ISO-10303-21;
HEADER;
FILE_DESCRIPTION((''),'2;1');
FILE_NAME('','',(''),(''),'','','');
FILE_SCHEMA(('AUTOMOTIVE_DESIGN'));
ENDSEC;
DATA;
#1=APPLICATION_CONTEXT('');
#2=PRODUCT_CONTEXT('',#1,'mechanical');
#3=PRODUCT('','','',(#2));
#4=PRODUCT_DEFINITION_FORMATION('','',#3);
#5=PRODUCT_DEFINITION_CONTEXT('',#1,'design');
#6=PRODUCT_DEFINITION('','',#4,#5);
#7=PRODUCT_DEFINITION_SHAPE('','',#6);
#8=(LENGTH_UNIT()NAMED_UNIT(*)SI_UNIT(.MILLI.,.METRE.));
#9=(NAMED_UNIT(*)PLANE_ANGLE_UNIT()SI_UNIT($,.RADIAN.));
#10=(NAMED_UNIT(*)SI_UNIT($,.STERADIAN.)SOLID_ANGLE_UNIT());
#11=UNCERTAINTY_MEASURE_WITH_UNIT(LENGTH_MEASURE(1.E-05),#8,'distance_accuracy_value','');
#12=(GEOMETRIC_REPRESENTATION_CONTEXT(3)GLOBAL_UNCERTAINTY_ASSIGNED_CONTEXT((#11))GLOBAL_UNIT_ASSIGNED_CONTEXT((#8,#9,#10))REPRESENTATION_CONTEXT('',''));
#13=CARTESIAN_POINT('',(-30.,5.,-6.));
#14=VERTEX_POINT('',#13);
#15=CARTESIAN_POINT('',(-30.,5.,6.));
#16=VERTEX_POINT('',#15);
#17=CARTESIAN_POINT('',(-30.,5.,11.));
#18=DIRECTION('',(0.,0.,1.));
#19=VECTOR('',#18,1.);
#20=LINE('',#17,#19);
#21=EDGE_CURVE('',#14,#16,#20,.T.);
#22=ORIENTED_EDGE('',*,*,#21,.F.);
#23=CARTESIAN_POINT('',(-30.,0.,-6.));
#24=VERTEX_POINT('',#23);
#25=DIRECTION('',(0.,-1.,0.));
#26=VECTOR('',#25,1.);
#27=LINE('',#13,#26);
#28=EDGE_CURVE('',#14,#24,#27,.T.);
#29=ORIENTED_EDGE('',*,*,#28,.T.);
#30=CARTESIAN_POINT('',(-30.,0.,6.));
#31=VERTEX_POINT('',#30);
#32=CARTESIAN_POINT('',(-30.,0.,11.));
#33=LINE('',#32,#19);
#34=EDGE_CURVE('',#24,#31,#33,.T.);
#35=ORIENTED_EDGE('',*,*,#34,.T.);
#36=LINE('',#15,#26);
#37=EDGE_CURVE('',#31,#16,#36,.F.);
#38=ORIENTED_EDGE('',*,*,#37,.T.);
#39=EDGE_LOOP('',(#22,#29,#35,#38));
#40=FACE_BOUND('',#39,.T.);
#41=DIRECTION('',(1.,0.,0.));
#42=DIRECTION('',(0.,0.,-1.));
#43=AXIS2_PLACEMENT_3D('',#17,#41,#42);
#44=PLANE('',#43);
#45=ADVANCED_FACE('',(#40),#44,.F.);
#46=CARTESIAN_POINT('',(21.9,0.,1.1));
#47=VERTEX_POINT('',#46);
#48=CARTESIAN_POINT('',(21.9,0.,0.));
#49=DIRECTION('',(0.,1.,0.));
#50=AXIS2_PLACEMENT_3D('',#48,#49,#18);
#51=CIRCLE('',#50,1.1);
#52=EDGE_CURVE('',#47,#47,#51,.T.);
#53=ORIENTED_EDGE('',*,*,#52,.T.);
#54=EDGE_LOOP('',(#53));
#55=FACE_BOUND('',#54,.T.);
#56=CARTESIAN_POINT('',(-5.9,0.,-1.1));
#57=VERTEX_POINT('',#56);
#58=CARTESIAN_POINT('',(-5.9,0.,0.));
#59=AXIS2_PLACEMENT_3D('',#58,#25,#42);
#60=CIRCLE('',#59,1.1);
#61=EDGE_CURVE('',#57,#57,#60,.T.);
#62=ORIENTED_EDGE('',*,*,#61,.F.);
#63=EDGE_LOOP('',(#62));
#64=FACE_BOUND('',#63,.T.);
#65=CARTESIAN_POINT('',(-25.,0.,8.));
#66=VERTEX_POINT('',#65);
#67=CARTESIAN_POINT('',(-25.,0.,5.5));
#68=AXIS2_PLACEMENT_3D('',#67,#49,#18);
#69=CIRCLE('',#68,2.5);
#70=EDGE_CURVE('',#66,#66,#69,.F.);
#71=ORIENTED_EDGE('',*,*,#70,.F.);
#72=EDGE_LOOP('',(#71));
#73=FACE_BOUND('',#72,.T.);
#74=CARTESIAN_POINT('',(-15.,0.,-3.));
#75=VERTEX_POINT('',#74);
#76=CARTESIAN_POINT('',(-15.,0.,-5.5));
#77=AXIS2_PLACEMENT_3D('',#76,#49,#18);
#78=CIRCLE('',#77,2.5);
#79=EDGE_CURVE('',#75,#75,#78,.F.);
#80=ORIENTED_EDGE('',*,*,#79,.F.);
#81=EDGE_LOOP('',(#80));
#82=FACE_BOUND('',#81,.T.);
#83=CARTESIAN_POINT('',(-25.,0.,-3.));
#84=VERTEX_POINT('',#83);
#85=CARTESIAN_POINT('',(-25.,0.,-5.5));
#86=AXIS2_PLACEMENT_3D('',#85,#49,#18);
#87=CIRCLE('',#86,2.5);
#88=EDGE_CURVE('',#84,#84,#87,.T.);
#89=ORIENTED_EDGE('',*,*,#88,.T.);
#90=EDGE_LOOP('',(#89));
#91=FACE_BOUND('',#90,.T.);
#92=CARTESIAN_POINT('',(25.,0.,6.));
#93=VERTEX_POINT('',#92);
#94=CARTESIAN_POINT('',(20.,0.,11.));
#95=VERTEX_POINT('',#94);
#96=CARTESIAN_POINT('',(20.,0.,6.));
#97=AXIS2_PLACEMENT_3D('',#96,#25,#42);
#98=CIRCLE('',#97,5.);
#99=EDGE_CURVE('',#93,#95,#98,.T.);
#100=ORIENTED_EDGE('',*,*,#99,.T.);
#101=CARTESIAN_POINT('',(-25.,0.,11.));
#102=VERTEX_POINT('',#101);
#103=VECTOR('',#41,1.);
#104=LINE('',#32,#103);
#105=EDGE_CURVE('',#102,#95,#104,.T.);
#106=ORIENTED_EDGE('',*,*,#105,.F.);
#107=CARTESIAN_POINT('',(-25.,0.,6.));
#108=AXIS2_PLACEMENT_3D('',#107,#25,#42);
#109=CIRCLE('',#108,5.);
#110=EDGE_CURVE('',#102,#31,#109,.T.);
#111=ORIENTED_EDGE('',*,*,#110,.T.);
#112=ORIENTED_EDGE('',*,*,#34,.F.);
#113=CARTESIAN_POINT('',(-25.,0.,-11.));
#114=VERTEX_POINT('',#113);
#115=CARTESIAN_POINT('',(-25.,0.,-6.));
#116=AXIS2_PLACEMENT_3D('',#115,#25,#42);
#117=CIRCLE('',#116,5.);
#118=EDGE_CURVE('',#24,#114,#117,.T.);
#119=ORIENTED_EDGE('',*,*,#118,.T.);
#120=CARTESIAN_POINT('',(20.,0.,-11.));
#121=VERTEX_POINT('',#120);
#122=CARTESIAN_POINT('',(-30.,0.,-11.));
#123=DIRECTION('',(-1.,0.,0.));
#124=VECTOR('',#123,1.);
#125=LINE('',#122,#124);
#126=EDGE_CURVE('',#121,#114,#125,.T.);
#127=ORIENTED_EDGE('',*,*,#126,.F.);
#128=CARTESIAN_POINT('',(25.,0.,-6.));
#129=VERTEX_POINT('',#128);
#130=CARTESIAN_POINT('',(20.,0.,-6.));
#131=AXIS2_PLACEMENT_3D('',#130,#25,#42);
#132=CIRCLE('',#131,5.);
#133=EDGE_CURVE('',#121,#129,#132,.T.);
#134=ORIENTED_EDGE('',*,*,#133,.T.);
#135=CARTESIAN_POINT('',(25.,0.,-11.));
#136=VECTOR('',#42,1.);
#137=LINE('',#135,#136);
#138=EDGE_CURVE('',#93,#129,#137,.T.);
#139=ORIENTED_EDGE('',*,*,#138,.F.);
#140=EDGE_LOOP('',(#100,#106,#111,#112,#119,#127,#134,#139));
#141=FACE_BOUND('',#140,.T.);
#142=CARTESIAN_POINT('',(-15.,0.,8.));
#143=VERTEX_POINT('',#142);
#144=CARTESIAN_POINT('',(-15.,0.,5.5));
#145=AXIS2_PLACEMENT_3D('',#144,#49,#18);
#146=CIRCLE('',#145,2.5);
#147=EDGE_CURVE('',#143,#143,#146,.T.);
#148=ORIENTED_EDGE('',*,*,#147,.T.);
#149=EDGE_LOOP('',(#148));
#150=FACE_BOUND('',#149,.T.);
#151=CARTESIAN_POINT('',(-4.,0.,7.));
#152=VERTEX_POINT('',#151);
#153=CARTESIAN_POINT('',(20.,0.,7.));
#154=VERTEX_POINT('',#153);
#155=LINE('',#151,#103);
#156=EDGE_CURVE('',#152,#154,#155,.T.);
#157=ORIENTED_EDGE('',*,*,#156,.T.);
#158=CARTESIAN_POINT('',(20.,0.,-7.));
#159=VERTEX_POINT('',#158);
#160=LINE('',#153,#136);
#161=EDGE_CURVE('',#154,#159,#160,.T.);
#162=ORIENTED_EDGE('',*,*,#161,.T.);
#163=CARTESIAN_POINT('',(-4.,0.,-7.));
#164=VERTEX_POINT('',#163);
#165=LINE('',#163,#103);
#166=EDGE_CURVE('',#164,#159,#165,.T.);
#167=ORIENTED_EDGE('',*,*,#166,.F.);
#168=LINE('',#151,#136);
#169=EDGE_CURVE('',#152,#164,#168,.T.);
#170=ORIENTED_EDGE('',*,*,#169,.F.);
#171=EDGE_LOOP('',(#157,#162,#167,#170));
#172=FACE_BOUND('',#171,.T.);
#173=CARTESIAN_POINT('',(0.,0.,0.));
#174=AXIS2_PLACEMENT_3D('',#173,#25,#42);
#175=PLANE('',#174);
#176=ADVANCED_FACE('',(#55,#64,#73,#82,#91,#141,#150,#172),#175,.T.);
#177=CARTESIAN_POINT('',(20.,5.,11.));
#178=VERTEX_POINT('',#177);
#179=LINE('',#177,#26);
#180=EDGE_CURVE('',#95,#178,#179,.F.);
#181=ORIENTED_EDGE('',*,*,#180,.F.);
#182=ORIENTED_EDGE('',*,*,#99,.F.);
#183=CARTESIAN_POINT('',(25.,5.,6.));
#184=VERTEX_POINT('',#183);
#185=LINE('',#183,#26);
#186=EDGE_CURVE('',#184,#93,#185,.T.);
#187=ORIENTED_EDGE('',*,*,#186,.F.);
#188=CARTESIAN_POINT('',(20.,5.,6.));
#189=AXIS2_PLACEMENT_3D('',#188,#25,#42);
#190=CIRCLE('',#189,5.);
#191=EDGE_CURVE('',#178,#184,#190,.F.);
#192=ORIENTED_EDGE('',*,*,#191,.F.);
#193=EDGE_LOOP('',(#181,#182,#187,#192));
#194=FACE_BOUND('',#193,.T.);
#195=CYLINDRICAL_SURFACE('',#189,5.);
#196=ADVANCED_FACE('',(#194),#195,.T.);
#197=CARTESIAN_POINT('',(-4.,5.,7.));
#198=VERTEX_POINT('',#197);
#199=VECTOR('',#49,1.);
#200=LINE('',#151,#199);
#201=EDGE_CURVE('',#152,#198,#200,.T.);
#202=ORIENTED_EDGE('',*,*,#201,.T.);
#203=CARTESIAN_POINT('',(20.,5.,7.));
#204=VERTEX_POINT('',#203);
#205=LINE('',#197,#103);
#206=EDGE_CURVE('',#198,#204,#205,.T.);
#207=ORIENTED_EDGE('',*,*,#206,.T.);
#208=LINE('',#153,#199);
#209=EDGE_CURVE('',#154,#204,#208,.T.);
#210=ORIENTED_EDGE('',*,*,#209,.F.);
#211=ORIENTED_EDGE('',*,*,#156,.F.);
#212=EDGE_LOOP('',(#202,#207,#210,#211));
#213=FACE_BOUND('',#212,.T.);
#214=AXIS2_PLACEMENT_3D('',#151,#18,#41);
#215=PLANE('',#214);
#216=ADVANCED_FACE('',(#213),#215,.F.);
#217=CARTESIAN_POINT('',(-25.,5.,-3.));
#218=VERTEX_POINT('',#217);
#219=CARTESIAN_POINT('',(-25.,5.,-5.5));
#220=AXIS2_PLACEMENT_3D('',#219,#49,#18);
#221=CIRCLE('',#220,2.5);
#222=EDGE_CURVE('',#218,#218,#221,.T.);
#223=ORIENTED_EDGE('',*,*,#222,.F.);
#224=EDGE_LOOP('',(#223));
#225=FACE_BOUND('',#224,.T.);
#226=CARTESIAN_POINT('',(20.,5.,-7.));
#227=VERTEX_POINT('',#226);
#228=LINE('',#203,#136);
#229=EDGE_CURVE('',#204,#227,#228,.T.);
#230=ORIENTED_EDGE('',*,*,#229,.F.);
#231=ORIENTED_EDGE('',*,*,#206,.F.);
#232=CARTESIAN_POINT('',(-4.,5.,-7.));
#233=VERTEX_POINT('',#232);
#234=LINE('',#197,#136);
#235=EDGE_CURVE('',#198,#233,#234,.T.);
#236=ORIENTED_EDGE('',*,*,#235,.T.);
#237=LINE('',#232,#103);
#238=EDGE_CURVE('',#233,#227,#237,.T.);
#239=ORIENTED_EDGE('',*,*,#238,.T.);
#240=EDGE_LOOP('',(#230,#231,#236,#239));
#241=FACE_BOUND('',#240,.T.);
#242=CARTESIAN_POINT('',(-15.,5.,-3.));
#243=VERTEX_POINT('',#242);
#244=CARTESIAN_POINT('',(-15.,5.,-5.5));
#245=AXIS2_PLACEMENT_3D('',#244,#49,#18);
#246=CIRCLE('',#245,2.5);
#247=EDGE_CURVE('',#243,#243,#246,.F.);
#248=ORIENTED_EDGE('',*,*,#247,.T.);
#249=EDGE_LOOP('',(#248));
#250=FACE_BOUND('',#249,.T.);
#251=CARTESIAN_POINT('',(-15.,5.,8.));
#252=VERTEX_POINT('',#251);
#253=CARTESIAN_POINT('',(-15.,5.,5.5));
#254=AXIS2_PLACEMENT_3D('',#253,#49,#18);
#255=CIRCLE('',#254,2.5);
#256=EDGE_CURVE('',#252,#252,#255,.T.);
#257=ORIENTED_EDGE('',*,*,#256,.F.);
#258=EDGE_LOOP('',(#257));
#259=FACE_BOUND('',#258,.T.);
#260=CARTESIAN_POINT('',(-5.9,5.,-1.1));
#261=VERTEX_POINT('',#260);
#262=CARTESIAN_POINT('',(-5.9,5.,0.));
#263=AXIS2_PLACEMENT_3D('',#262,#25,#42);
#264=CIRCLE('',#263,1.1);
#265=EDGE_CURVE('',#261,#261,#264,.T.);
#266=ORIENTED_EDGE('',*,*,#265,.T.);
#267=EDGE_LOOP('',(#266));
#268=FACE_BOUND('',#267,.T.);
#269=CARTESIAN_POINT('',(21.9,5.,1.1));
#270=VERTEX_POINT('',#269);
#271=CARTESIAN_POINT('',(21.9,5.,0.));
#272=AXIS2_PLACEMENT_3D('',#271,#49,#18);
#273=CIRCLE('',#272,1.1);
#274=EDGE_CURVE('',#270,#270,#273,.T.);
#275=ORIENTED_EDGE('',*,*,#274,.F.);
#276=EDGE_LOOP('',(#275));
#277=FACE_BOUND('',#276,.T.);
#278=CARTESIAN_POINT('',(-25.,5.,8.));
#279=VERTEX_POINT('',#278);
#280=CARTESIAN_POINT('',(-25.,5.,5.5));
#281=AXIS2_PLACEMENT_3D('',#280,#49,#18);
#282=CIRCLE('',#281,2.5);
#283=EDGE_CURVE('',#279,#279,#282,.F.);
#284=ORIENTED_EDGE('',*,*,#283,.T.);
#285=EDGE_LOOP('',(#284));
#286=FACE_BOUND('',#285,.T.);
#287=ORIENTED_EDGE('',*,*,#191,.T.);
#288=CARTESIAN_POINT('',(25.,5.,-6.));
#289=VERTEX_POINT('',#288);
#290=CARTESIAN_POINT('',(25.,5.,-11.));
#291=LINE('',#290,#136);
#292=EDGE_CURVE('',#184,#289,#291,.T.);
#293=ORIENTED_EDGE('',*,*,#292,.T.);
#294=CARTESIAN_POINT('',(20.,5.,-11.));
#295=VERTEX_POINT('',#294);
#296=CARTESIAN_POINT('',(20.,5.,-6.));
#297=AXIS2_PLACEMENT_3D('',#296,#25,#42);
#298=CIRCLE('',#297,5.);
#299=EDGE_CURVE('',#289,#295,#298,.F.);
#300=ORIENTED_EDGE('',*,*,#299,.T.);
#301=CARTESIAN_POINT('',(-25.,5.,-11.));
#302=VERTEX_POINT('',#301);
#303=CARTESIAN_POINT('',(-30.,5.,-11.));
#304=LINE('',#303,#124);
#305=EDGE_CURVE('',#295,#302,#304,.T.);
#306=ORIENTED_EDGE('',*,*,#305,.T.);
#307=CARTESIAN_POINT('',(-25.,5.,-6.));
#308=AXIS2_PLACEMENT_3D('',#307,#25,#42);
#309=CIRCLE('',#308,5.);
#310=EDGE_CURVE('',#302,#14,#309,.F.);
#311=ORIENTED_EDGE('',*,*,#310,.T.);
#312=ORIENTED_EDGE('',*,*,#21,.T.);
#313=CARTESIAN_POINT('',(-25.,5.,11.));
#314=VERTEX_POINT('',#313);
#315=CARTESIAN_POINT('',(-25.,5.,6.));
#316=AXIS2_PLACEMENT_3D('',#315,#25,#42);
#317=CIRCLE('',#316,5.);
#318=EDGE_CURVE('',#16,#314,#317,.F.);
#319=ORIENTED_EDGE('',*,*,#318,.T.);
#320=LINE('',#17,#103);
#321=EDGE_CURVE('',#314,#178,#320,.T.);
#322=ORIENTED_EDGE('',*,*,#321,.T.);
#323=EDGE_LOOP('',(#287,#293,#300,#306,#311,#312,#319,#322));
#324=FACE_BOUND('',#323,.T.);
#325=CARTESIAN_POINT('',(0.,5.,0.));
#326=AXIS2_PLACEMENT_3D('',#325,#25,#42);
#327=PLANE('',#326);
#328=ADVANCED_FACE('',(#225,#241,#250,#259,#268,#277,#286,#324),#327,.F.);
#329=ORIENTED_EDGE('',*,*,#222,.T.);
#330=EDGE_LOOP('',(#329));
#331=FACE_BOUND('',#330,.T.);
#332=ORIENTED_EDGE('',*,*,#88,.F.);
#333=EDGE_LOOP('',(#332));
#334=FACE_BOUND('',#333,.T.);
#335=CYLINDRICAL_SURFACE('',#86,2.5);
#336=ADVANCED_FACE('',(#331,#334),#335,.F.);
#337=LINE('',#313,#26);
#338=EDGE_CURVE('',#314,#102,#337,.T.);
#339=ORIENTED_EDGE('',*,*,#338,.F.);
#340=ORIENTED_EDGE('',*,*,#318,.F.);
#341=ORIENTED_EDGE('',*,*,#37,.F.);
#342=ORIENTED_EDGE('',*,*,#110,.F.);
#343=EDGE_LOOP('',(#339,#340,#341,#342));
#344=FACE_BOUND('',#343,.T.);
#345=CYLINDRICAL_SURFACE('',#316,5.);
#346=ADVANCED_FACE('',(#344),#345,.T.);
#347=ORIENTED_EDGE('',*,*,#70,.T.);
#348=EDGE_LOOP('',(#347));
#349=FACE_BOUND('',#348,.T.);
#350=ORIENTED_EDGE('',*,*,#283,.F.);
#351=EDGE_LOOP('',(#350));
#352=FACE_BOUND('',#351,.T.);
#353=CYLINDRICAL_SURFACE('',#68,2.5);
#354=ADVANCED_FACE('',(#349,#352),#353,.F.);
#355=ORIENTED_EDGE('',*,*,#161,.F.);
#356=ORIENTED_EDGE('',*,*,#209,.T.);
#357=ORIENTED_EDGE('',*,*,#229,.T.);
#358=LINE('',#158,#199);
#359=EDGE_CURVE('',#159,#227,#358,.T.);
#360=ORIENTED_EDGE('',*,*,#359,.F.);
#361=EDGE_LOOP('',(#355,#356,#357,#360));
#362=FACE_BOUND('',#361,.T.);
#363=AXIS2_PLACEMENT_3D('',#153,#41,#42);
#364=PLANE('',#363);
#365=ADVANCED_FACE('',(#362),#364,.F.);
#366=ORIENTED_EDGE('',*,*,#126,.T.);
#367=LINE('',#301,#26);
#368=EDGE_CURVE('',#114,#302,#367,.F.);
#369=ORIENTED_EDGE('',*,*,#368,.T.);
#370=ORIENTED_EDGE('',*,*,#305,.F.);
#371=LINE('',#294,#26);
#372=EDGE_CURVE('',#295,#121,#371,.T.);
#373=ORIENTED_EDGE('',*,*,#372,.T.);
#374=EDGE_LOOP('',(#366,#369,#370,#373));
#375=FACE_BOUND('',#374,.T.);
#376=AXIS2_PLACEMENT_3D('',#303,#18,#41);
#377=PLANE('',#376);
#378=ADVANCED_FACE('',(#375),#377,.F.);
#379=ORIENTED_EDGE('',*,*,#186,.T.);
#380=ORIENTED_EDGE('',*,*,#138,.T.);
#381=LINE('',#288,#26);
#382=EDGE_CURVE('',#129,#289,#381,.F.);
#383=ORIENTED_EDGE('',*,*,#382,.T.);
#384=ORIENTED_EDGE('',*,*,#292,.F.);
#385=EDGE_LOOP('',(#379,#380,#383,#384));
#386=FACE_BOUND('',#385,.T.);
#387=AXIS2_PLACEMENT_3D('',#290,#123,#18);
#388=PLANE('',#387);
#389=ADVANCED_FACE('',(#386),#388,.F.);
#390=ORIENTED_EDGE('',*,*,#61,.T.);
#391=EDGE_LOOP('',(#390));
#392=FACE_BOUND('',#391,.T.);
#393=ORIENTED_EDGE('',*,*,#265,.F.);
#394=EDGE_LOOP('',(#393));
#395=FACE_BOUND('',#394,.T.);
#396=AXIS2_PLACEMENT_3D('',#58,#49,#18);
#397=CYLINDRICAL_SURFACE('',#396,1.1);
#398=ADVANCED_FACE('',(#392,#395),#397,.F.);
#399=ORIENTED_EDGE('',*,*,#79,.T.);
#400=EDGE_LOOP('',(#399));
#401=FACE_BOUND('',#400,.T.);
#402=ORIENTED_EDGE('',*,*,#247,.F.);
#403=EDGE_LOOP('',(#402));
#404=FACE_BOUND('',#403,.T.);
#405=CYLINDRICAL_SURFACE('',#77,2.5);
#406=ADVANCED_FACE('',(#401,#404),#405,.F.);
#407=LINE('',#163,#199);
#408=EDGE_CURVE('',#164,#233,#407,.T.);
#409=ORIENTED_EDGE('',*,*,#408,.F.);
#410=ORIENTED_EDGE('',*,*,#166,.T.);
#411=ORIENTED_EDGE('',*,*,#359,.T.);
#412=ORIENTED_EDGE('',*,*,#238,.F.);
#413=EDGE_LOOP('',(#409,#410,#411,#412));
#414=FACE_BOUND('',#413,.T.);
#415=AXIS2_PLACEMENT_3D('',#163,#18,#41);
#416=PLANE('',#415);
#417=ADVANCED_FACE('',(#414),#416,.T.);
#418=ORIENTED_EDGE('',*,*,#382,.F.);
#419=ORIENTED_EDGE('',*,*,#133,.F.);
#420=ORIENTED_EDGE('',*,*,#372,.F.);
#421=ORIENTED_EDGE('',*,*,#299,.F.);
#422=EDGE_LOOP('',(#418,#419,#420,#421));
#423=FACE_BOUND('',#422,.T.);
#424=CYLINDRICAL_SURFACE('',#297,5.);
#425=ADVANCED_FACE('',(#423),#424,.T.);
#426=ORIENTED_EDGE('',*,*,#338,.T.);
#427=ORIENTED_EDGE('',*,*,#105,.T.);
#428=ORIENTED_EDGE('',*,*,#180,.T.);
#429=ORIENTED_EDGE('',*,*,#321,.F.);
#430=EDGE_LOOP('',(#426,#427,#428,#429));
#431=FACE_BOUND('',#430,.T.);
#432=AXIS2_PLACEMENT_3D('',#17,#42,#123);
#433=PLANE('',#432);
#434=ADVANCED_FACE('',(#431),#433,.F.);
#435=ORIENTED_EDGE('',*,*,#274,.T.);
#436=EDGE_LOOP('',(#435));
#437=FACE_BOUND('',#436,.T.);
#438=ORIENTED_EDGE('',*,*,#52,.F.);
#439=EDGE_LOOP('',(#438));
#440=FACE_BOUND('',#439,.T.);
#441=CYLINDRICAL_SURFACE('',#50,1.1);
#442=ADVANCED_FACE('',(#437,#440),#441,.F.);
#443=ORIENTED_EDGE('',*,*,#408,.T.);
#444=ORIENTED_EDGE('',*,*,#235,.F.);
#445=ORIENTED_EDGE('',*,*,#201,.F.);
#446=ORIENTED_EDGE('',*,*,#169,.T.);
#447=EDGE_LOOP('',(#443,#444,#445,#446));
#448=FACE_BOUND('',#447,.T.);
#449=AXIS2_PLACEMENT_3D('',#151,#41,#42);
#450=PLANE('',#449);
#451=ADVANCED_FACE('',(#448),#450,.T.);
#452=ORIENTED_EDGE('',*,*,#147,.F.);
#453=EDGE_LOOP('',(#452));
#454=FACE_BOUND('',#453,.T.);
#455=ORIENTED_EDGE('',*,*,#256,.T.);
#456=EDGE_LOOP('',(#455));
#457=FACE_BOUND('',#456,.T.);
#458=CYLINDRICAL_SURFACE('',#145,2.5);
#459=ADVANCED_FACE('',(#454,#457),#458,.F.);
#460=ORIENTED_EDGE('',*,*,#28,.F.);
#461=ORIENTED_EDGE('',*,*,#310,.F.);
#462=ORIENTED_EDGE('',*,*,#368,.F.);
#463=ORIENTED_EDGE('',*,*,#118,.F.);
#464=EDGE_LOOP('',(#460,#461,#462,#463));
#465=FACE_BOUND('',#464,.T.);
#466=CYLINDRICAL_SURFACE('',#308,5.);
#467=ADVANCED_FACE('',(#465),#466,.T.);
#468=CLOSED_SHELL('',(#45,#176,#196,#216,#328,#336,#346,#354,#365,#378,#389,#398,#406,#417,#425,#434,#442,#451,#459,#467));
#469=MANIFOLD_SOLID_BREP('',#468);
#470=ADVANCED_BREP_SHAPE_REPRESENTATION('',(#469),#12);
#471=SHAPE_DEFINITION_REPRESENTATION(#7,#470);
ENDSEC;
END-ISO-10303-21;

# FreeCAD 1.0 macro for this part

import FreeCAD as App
import Part
import Sketcher
from FreeCAD import Vector
Q = App.Units.Quantity


def edges_at(feature, points):
    """Names of the edges that pass closest to the given points."""
    edges = feature.Shape.Edges
    near = lambda p: min(range(len(edges)), key=lambda i: edges[i].distToShape(Part.Vertex(*p))[0])
    return sorted({f"Edge{near(p) + 1}" for p in points})

doc = App.newDocument("Part")
body = doc.addObject("PartDesign::Body", "Body")

# Sketch on XZ plane
sketch1 = body.newObject("Sketcher::SketchObject", "Sketch")
sketch1.AttachmentSupport = (doc.getObject("XZ_Plane"), [""])
sketch1.MapMode = "FlatFace"
sketch1.addGeometry([
    Part.LineSegment(Vector(-30, -11, 0), Vector(-30, 11, 0)),
    Part.LineSegment(Vector(-30, 11, 0), Vector(25, 11, 0)),
    Part.LineSegment(Vector(25, 11, 0), Vector(25, -11, 0)),
    Part.LineSegment(Vector(25, -11, 0), Vector(-30, -11, 0)),
], False)
sketch1.addConstraint([
    Sketcher.Constraint("Coincident", 0, 2, 1, 1),
    Sketcher.Constraint("Coincident", 1, 2, 2, 1),
    Sketcher.Constraint("Coincident", 2, 2, 3, 1),
    Sketcher.Constraint("Coincident", 3, 2, 0, 1),
    Sketcher.Constraint("Vertical", 0),
    Sketcher.Constraint("Horizontal", 1),
    Sketcher.Constraint("Vertical", 2),
    Sketcher.Constraint("Horizontal", 3),
    Sketcher.Constraint("DistanceX", 1, 1, 1, 2, Q("55 mm")),
    Sketcher.Constraint("DistanceY", 0, 1, 0, 2, Q("22 mm")),
    Sketcher.Constraint("DistanceX", 0, 2, -1, 1, Q("30 mm")),
    Sketcher.Constraint("DistanceY", -1, 1, 0, 2, Q("11 mm")),
])
pad1 = body.newObject("PartDesign::Pad", "Pad")
pad1.Profile = sketch1
pad1.Length = 5
pad1.Reversed = True

# Sketch on XZ plane
sketch2 = body.newObject("Sketcher::SketchObject", "Sketch001")
sketch2.AttachmentSupport = (doc.getObject("XZ_Plane"), [""])
sketch2.MapMode = "FlatFace"
sketch2.AttachmentOffset = App.Placement(Vector(0, 0, -5), App.Rotation())
sketch2.addGeometry([
    Part.Circle(Vector(-25, -5.5, 0), Vector(0, 0, 1), 2.5),
    Part.Circle(Vector(-15, -5.5, 0), Vector(0, 0, 1), 2.5),
    Part.Circle(Vector(-25, 5.5, 0), Vector(0, 0, 1), 2.5),
    Part.Circle(Vector(-15, 5.5, 0), Vector(0, 0, 1), 2.5),
], False)
sketch2.addConstraint([
    Sketcher.Constraint("Equal", 0, 1),
    Sketcher.Constraint("Equal", 1, 2),
    Sketcher.Constraint("Equal", 2, 3),
    Sketcher.Constraint("Symmetric", 0, 3, 2, 3, -1),
    Sketcher.Constraint("Symmetric", 1, 3, 3, 3, -1),
    Sketcher.Constraint("Horizontal", 0, 3, 1, 3),
    Sketcher.Constraint("Diameter", 0, Q("5 mm")),
    Sketcher.Constraint("DistanceX", 0, 3, -1, 1, Q("25 mm")),
    Sketcher.Constraint("DistanceX", 1, 3, -1, 1, Q("15 mm")),
    Sketcher.Constraint("DistanceY", 0, 3, 2, 3, Q("11 mm")),
])
pocket1 = body.newObject("PartDesign::Pocket", "Pocket")
pocket1.Profile = sketch2
pocket1.Length = 5
pocket1.Reversed = True
doc.recompute()

fillet = body.newObject("PartDesign::Fillet", "Fillet")
fillet.Base = (pocket1, edges_at(pocket1, [
    (-30, 2.5, -11),
    (25, 2.5, -11),
    (25, 2.5, 11),
    (-30, 2.5, 11),
]))
fillet.Radius = 5

# Sketch on XZ plane
sketch3 = body.newObject("Sketcher::SketchObject", "Sketch002")
sketch3.AttachmentSupport = (doc.getObject("XZ_Plane"), [""])
sketch3.MapMode = "FlatFace"
sketch3.AttachmentOffset = App.Placement(Vector(0, 0, -5), App.Rotation())
sketch3.addGeometry([
    Part.Circle(Vector(21.9, 0, 0), Vector(0, 0, 1), 1.1),  # 0
    Part.Circle(Vector(-5.9, 0, 0), Vector(0, 0, 1), 1.1),  # 1
    Part.LineSegment(Vector(-4, -7, 0), Vector(-4, 7, 0)),  # 2
    Part.LineSegment(Vector(-4, 7, 0), Vector(20, 7, 0)),  # 3
    Part.LineSegment(Vector(20, 7, 0), Vector(20, -7, 0)),  # 4
    Part.LineSegment(Vector(20, -7, 0), Vector(-4, -7, 0)),  # 5
], False)
sketch3.addConstraint([
    Sketcher.Constraint("Coincident", 2, 2, 3, 1),
    Sketcher.Constraint("Coincident", 3, 2, 4, 1),
    Sketcher.Constraint("Coincident", 4, 2, 5, 1),
    Sketcher.Constraint("Coincident", 5, 2, 2, 1),
    Sketcher.Constraint("Vertical", 2),
    Sketcher.Constraint("Horizontal", 3),
    Sketcher.Constraint("Vertical", 4),
    Sketcher.Constraint("Horizontal", 5),
    Sketcher.Constraint("Equal", 0, 1),
    Sketcher.Constraint("PointOnObject", 0, 3, -1),
    Sketcher.Constraint("PointOnObject", 1, 3, -1),
    Sketcher.Constraint("Diameter", 0, Q("2.2 mm")),
    Sketcher.Constraint("DistanceX", 3, 1, 3, 2, Q("24 mm")),
    Sketcher.Constraint("DistanceY", 2, 1, 2, 2, Q("14 mm")),
    Sketcher.Constraint("DistanceX", 2, 2, -1, 1, Q("4 mm")),
    Sketcher.Constraint("DistanceY", -1, 1, 2, 2, Q("7 mm")),
    Sketcher.Constraint("DistanceX", -1, 1, 0, 3, Q("21.9 mm")),
    Sketcher.Constraint("DistanceX", 1, 3, -1, 1, Q("5.9 mm")),
])
pocket2 = body.newObject("PartDesign::Pocket", "Pocket001")
pocket2.Profile = sketch3
pocket2.Length = 5
pocket2.Reversed = True

doc.recompute()
